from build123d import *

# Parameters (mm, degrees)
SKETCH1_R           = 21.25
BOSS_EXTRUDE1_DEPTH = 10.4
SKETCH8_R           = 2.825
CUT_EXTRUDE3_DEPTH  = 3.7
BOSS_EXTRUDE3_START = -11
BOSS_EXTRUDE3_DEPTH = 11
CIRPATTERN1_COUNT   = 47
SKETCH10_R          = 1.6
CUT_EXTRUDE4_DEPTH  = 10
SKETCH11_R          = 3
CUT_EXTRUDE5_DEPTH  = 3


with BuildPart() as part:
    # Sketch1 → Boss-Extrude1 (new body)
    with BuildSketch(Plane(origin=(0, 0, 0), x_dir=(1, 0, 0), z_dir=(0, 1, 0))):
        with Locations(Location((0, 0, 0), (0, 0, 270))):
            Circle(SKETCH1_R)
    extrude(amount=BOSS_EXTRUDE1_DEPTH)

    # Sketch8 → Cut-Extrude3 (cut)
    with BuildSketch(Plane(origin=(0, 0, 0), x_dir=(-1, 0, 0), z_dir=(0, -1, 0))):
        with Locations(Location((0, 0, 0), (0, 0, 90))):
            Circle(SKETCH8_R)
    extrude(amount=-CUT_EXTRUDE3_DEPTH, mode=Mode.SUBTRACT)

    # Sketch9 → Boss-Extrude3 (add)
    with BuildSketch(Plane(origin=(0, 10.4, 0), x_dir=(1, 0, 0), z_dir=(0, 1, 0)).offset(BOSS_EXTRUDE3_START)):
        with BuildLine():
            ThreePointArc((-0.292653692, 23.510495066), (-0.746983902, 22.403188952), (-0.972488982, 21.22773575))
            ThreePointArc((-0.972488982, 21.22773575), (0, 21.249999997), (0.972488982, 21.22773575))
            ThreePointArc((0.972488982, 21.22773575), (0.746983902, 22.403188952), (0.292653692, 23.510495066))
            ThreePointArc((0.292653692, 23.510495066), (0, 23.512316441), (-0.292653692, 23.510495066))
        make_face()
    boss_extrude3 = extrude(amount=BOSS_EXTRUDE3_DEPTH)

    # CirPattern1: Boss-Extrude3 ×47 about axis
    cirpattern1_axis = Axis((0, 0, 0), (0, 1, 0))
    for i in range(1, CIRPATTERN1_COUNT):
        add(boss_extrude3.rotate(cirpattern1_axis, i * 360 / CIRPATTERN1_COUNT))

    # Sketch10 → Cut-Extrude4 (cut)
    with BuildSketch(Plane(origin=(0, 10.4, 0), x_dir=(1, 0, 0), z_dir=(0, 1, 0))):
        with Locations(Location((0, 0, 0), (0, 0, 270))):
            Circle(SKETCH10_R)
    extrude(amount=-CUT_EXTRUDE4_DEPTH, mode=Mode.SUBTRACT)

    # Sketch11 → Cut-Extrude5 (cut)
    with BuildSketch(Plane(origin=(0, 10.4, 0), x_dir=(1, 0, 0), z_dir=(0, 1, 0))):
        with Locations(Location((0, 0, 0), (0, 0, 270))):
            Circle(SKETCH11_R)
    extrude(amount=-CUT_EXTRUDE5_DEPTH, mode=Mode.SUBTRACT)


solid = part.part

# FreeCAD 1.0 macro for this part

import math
import FreeCAD as App
import Part
import Sketcher

V = App.Vector

doc = App.newDocument("Part")
body = doc.addObject("PartDesign::Body", "Body")

# Sketch on XZ plane
sketch1 = doc.addObject("Sketcher::SketchObject", "Sketch")
body.addObject(sketch1)
sketch1.AttachmentSupport = (doc.XZ_Plane, [""])
sketch1.MapMode = "FlatFace"
sketch1.addGeometry(Part.Circle(V(0, 0, 0), V(0, 0, 1), 21), False)
sketch1.addConstraint([
    Sketcher.Constraint("Coincident", 0, 3, -1, 1),
    Sketcher.Constraint("Diameter", 0, 42.5),
])
pad1 = doc.addObject("PartDesign::Pad", "Pad")
body.addObject(pad1)
pad1.Profile = sketch1
pad1.Length = 10.4
pad1.Reversed = True

# Sketch on XZ plane
sketch2 = doc.addObject("Sketcher::SketchObject", "Sketch001")
body.addObject(sketch2)
sketch2.AttachmentSupport = (doc.XZ_Plane, [""])
sketch2.MapMode = "FlatFace"
sketch2.addGeometry(Part.Circle(V(0, 0, 0), V(0, 0, 1), 2.8), False)
sketch2.addConstraint([
    Sketcher.Constraint("Coincident", 0, 3, -1, 1),
    Sketcher.Constraint("Diameter", 0, 5.65),
])
pocket1 = doc.addObject("PartDesign::Pocket", "Pocket")
body.addObject(pocket1)
pocket1.Profile = sketch2
pocket1.Length = 3.7

# Sketch on XZ plane
sketch3 = doc.addObject("Sketcher::SketchObject", "Sketch002")
body.addObject(sketch3)
sketch3.AttachmentSupport = (doc.XZ_Plane, [""])
sketch3.MapMode = "FlatFace"
sketch3.AttachmentOffset = App.Placement(V(0, 0, 0.6), App.Rotation())
sketch3.addGeometry([
    Part.ArcOfCircle(Part.Circle(V(5, -20.7, 0), V(0, 0, 1), 6), math.radians(-175), math.radians(-152)),
    Part.ArcOfCircle(Part.Circle(V(0, 0, 0), V(0, 0, 1), 21.3), math.radians(-92.62), math.radians(-87.38)),
    Part.ArcOfCircle(Part.Circle(V(-5, -20.7, 0), V(0, 0, 1), 6), math.radians(-28), math.radians(-5)),
    Part.ArcOfCircle(Part.Circle(V(0, 0, 0), V(0, 0, 1), 23.5), math.radians(-90.71), math.radians(-89.29)),
], False)
sketch3.addConstraint([
    Sketcher.Constraint("Coincident", 0, 1, 1, 1),
    Sketcher.Constraint("Coincident", 1, 2, 2, 2),
    Sketcher.Constraint("Coincident", 2, 1, 3, 2),
    Sketcher.Constraint("Coincident", 3, 1, 0, 2),
    Sketcher.Constraint("Coincident", 1, 3, -1, 1),
    Sketcher.Constraint("Coincident", 3, 3, -1, 1),
    Sketcher.Constraint("Equal", 0, 2),
    Sketcher.Constraint("Symmetric", 0, 3, 2, 3, -2),
    Sketcher.Constraint("Radius", 0, 6.0),
    Sketcher.Constraint("Radius", 1, 21.25),
    Sketcher.Constraint("Radius", 3, 23.512319),
    Sketcher.Constraint("DistanceX", 0, 1, -1, 1, 0.972489),
    Sketcher.Constraint("DistanceX", 2, 1, 0, 3, 4.71077),
])
pad2 = doc.addObject("PartDesign::Pad", "Pad001")
body.addObject(pad2)
pad2.Profile = sketch3
pad2.Length = 11
pad2.Reversed = True
doc.recompute()

polarpattern = doc.addObject("PartDesign::PolarPattern", "PolarPattern")
body.addObject(polarpattern)
polarpattern.Originals = [pad2]
polarpattern.Axis = (doc.Y_Axis, [""])
polarpattern.Angle = 360
polarpattern.Occurrences = 47
body.Tip = polarpattern

# Sketch on XZ plane
sketch4 = doc.addObject("Sketcher::SketchObject", "Sketch003")
body.addObject(sketch4)
sketch4.AttachmentSupport = (doc.XZ_Plane, [""])
sketch4.MapMode = "FlatFace"
sketch4.AttachmentOffset = App.Placement(V(0, 0, -10.4), App.Rotation())
sketch4.addGeometry(Part.Circle(V(0, 0, 0), V(0, 0, 1), 1.6), False)
sketch4.addConstraint([
    Sketcher.Constraint("Coincident", 0, 3, -1, 1),
    Sketcher.Constraint("Diameter", 0, 3.2),
])
pocket2 = doc.addObject("PartDesign::Pocket", "Pocket001")
body.addObject(pocket2)
pocket2.Profile = sketch4
pocket2.Length = 10
pocket2.Reversed = True

# Sketch on XZ plane
sketch5 = doc.addObject("Sketcher::SketchObject", "Sketch004")
body.addObject(sketch5)
sketch5.AttachmentSupport = (doc.XZ_Plane, [""])
sketch5.MapMode = "FlatFace"
sketch5.AttachmentOffset = App.Placement(V(0, 0, -10.4), App.Rotation())
sketch5.addGeometry(Part.Circle(V(0, 0, 0), V(0, 0, 1), 3), False)
sketch5.addConstraint([
    Sketcher.Constraint("Coincident", 0, 3, -1, 1),
    Sketcher.Constraint("Diameter", 0, 6.0),
])
pocket3 = doc.addObject("PartDesign::Pocket", "Pocket002")
body.addObject(pocket3)
pocket3.Profile = sketch5
pocket3.Length = 3
pocket3.Reversed = True

doc.recompute()
